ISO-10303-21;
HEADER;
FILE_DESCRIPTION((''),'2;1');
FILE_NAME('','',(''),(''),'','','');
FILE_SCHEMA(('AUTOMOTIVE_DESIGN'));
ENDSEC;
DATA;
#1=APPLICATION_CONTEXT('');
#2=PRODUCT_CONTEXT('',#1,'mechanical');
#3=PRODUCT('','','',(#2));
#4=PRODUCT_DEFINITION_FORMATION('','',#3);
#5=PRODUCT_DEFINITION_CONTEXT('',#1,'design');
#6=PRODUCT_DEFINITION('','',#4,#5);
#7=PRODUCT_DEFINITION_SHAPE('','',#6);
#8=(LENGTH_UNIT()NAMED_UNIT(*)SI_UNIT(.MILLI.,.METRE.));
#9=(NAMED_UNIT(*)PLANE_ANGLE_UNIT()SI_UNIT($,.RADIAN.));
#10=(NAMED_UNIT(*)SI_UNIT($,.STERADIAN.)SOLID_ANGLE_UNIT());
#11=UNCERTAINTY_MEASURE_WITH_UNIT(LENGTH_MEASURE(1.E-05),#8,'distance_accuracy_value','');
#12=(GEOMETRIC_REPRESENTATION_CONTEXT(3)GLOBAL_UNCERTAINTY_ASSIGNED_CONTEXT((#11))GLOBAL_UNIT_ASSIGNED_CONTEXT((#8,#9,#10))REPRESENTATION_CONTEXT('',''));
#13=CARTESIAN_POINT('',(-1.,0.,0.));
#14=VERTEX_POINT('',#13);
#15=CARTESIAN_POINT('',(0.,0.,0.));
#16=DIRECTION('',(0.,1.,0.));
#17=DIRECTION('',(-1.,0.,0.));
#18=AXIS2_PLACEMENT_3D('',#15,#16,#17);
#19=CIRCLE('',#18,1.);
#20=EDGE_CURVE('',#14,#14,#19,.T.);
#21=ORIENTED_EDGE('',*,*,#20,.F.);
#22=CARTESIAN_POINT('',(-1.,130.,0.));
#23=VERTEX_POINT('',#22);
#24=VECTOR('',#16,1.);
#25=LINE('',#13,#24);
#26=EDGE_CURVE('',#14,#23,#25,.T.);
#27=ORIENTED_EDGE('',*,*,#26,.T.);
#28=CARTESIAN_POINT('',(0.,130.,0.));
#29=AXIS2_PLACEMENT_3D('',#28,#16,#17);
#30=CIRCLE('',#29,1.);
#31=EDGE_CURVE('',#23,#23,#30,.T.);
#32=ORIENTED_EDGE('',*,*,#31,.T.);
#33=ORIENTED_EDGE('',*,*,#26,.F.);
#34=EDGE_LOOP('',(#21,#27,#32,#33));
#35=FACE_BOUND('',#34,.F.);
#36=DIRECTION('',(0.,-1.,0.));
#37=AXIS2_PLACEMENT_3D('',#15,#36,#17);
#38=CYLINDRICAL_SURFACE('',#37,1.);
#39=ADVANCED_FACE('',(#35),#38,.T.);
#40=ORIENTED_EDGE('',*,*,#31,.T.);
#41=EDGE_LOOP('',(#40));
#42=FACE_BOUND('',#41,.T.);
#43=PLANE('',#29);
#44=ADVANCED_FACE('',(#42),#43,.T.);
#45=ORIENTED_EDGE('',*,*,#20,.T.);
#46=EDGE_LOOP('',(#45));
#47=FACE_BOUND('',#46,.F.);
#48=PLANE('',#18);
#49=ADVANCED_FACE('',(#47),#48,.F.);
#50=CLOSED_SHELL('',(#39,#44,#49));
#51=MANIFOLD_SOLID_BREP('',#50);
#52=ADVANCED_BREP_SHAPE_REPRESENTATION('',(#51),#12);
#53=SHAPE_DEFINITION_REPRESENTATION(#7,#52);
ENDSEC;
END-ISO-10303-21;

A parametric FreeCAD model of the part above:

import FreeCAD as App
import Part
import Sketcher

V = App.Vector

doc = App.newDocument("Part")
params = doc.addObject("Spreadsheet::Sheet", "Params")
for row, (alias, value) in enumerate([
    ("sketch1_diameter", "2 mm"),
    ("pad1_length", "130 mm"),
], start=1):
    params.set(f"A{row}", alias)
    params.set(f"B{row}", "=" + value)
    params.setAlias(f"B{row}", alias)

body = doc.addObject("PartDesign::Body", "Body")

sketch1 = doc.addObject("Sketcher::SketchObject", "Sketch")
body.addObject(sketch1)
sketch1.AttachmentSupport = (doc.XZ_Plane, [""])
sketch1.MapMode = "FlatFace"
sketch1.addGeometry(Part.Circle(V(0, 0, 0), V(0, 0, 1), 1), False)
sketch1.addConstraint([
    Sketcher.Constraint("Coincident", 0, 3, -1, 1),
    Sketcher.Constraint("Diameter", 0, 2.0),
])
sketch1.setExpression("Constraints[1]", "Params.sketch1_diameter")
pad1 = doc.addObject("PartDesign::Pad", "Pad")
body.addObject(pad1)
pad1.Profile = sketch1
pad1.setExpression("Length", "Params.pad1_length")
pad1.Reversed = True

doc.recompute()
